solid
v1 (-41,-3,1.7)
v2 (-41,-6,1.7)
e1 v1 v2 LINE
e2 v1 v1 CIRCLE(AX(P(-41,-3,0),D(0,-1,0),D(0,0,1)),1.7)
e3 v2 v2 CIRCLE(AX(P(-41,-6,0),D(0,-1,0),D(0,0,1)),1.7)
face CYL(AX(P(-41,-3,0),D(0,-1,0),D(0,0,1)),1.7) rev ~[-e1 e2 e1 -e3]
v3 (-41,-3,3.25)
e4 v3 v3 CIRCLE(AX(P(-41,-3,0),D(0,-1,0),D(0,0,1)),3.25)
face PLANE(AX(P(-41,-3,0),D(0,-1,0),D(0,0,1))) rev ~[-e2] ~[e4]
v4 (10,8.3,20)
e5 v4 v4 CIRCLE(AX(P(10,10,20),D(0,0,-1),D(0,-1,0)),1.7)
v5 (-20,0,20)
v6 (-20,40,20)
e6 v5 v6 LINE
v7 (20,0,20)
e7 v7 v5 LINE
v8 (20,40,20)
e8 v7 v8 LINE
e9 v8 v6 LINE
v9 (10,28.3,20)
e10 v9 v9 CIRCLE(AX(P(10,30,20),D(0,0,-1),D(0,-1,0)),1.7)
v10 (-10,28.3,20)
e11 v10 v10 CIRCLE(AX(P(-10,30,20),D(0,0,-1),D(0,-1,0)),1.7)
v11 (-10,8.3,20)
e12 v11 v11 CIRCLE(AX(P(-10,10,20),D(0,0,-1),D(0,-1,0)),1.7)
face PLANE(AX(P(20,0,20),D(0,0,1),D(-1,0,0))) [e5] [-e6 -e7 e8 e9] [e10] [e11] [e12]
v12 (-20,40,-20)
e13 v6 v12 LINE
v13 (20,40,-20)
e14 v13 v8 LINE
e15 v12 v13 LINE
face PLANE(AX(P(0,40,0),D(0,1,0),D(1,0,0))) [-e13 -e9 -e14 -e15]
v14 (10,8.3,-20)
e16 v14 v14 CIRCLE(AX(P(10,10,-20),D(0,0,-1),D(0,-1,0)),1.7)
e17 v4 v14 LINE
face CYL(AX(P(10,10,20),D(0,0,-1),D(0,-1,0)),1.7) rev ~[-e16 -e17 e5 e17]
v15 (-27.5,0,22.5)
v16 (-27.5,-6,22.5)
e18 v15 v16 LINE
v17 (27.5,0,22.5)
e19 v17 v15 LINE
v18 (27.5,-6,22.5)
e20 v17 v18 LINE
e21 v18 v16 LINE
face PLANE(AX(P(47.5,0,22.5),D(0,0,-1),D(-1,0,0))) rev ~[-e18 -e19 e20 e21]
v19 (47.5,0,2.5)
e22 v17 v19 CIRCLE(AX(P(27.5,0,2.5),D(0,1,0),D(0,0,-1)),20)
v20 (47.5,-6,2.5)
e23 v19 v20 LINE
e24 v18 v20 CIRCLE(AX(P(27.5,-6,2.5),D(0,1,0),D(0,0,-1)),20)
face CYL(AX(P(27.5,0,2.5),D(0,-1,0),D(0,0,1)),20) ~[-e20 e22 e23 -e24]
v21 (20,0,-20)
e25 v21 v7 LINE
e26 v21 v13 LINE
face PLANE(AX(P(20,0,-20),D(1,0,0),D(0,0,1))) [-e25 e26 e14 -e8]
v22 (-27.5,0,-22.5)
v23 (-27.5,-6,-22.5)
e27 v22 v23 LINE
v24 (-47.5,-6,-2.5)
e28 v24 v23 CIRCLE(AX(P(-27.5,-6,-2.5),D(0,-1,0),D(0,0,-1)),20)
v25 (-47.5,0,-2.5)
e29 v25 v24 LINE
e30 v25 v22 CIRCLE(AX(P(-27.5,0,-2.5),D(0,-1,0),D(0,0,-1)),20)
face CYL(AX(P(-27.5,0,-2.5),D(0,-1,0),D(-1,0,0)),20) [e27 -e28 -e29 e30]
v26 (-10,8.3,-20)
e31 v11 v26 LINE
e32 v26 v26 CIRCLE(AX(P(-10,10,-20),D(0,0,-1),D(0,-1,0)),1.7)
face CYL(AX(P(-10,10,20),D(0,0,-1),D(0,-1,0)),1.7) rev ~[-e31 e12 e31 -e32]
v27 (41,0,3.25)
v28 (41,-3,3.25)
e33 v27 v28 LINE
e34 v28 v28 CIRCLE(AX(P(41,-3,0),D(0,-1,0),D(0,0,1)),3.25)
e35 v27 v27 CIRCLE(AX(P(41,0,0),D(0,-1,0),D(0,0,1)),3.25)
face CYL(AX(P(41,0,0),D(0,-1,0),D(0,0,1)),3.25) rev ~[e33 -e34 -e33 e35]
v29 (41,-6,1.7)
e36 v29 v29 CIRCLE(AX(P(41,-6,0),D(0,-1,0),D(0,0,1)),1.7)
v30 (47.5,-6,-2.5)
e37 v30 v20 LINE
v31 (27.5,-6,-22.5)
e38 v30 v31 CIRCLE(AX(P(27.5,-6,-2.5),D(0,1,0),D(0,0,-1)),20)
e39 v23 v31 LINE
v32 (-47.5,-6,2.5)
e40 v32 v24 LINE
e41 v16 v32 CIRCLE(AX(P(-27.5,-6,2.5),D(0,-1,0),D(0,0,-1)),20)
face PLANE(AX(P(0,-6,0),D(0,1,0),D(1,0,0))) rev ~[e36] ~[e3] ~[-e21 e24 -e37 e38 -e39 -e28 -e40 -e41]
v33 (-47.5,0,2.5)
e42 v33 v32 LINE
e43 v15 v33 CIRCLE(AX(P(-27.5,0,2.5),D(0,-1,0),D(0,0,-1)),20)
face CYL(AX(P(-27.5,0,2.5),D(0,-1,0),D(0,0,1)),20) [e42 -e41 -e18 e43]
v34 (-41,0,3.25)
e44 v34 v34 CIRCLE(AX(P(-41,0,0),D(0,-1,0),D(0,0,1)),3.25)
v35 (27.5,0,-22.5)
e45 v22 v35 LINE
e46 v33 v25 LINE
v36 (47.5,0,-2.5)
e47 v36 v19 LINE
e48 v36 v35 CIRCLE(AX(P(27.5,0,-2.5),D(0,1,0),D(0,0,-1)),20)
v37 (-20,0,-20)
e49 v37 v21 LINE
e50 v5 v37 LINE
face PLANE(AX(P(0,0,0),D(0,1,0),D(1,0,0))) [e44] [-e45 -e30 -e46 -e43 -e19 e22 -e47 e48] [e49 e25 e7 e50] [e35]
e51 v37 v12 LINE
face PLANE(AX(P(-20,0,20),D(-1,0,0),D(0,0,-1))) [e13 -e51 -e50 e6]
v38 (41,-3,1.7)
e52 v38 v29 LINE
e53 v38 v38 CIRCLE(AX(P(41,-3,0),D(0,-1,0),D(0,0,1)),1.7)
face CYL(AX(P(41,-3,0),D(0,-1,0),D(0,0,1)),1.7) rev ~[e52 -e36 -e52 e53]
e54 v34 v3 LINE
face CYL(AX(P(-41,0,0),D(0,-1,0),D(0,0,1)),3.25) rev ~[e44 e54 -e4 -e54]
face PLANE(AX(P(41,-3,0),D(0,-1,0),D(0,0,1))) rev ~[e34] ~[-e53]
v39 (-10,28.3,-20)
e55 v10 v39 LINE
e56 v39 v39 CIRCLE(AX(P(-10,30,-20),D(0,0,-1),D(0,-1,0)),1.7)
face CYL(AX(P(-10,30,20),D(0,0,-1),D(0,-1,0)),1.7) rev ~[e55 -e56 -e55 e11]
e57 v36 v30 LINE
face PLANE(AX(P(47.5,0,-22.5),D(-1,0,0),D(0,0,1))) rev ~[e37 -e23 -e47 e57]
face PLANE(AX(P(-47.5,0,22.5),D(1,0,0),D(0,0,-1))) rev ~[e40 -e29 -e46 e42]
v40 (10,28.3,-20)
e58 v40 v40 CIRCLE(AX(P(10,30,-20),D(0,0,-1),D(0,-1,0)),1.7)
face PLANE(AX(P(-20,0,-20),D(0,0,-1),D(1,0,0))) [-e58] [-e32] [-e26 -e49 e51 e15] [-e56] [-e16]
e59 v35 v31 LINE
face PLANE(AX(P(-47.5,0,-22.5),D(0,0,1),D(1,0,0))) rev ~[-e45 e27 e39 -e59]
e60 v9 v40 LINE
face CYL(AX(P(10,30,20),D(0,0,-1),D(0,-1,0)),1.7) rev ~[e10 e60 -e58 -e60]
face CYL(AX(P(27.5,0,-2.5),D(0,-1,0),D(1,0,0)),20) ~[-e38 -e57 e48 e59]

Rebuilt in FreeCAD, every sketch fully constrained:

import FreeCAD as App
import Part
import Sketcher
from FreeCAD import Vector


def edges_at(feature, points):
    """Names of the edges that pass closest to the given points."""
    edges = feature.Shape.Edges
    near = lambda p: min(range(len(edges)), key=lambda i: edges[i].distToShape(Part.Vertex(*p))[0])
    return sorted({f"Edge{near(p) + 1}" for p in points})


def add_polygon(sketch, points):
    """Adds a closed chain of lines whose ends are joined by coincident constraints."""
    first, n = sketch.GeometryCount, len(points)
    for a, b in zip(points, points[1:] + points[:1]):
        sketch.addGeometry(Part.LineSegment(App.Vector(*a, 0), App.Vector(*b, 0)), False)
    for i in range(n):
        sketch.addConstraint(Sketcher.Constraint("Coincident", first + i, 2, first + (i + 1) % n, 1))

doc = App.newDocument("Part")
body = doc.addObject("PartDesign::Body", "Body")

sketch1 = doc.addObject("Sketcher::SketchObject", "Sketch")
body.addObject(sketch1)
sketch1.AttachmentSupport = (doc.XZ_Plane, [""])
sketch1.MapMode = "FlatFace"
add_polygon(sketch1, [(-47.5, 22.5), (47.5, 22.5), (47.5, -22.5), (-47.5, -22.5)])
sketch1.addConstraint([
    Sketcher.Constraint("Horizontal", 0),
    Sketcher.Constraint("Vertical", 1),
    Sketcher.Constraint("Horizontal", 2),
    Sketcher.Constraint("Vertical", 3),
    Sketcher.Constraint("Symmetric", 0, 2, 2, 2, -1, 1),
    Sketcher.Constraint("DistanceX", 0, 1, 0, 2, 95.0),
    Sketcher.Constraint("DistanceY", 1, 2, 1, 1, 45.0),
])
pad1 = doc.addObject("PartDesign::Pad", "Pad")
body.addObject(pad1)
pad1.Profile = sketch1
pad1.Length = 6

sketch2 = doc.addObject("Sketcher::SketchObject", "Sketch001")
body.addObject(sketch2)
sketch2.AttachmentSupport = (doc.XZ_Plane, [""])
sketch2.MapMode = "FlatFace"
sketch2.addGeometry([
    Part.Circle(Vector(-41, 0, 0), Vector(0, 0, 1), 1.7),
    Part.Circle(Vector(41, 0, 0), Vector(0, 0, 1), 1.7),
], False)
sketch2.addConstraint([
    Sketcher.Constraint("Equal", 0, 1),
    Sketcher.Constraint("Symmetric", 0, 3, 1, 3, -1, 1),
    Sketcher.Constraint("PointOnObject", 0, 3, -1),
    Sketcher.Constraint("Diameter", 0, 3.4),
    Sketcher.Constraint("DistanceX", 0, 3, -1, 1, 41.0),
])
doc.recompute()
hole = doc.addObject("PartDesign::Hole", "Hole")
body.addObject(hole)
hole.Profile = sketch2
hole.ThreadType = "None"
hole.Diameter = 3.4
hole.DepthType = "Dimension"
hole.Depth = 35
hole.DrillPoint = "Angled"
hole.DrillPointAngle = 118
hole.HoleCutType = "Counterbore"
hole.HoleCutDiameter = 6.5
hole.HoleCutDepth = 3
hole.Reversed = True

sketch3 = doc.addObject("Sketcher::SketchObject", "Sketch002")
body.addObject(sketch3)
sketch3.AttachmentSupport = (doc.XZ_Plane, [""])
sketch3.MapMode = "FlatFace"
add_polygon(sketch3, [(-20, 20), (20, 20), (20, -20), (-20, -20)])
sketch3.addConstraint([
    Sketcher.Constraint("Horizontal", 0),
    Sketcher.Constraint("Vertical", 1),
    Sketcher.Constraint("Horizontal", 2),
    Sketcher.Constraint("Vertical", 3),
    Sketcher.Constraint("Symmetric", 0, 2, 2, 2, -1, 1),
    Sketcher.Constraint("Equal", 2, 1),
    Sketcher.Constraint("DistanceX", 0, 1, 0, 2, 40.0),
])
pad2 = doc.addObject("PartDesign::Pad", "Pad001")
body.addObject(pad2)
pad2.Profile = sketch3
pad2.Length = 40
pad2.Reversed = True
doc.recompute()

fillet = doc.addObject("PartDesign::Fillet", "Fillet")
body.addObject(fillet)
fillet.Base = (pad2, edges_at(pad2, [(-47.5, -3, 22.5), (-47.5, -3, -22.5)]))
fillet.Radius = 20
doc.recompute()

fillet2 = doc.addObject("PartDesign::Fillet", "Fillet001")
body.addObject(fillet2)
fillet2.Base = (fillet, edges_at(fillet, [(47.5, -3, 22.5), (47.5, -3, -22.5)]))
fillet2.Radius = 20

sketch4 = doc.addObject("Sketcher::SketchObject", "Sketch003")
body.addObject(sketch4)
sketch4.AttachmentSupport = (doc.XY_Plane, [""])
sketch4.MapMode = "FlatFace"
sketch4.AttachmentOffset = App.Placement(Vector(0, 0, 20), App.Rotation())
sketch4.addGeometry([
    Part.Circle(Vector(10, 30, 0), Vector(0, 0, 1), 1.7),
    Part.Circle(Vector(-10, 30, 0), Vector(0, 0, 1), 1.7),
    Part.Circle(Vector(-10, 10, 0), Vector(0, 0, 1), 1.7),
    Part.Circle(Vector(10, 10, 0), Vector(0, 0, 1), 1.7),
], False)
sketch4.addConstraint([
    Sketcher.Constraint("Equal", 0, 1),
    Sketcher.Constraint("Equal", 1, 2),
    Sketcher.Constraint("Equal", 2, 3),
    Sketcher.Constraint("Symmetric", 0, 3, 1, 3, -2),
    Sketcher.Constraint("Symmetric", 2, 3, 3, 3, -2),
    Sketcher.Constraint("Vertical", 1, 3, 2, 3),
    Sketcher.Constraint("Diameter", 0, 3.4),
    Sketcher.Constraint("DistanceX", -1, 1, 0, 3, 10.0),
    Sketcher.Constraint("DistanceY", -1, 1, 0, 3, 30.0),
    Sketcher.Constraint("DistanceY", -1, 1, 2, 3, 10.0),
])
doc.recompute()
hole2 = doc.addObject("PartDesign::Hole", "Hole001")
body.addObject(hole2)
hole2.Profile = sketch4
hole2.ThreadType = "None"
hole2.Diameter = 3.4
hole2.DepthType = "Dimension"
hole2.Depth = 44
hole2.DrillPoint = "Angled"
hole2.DrillPointAngle = 118

doc.recompute()
